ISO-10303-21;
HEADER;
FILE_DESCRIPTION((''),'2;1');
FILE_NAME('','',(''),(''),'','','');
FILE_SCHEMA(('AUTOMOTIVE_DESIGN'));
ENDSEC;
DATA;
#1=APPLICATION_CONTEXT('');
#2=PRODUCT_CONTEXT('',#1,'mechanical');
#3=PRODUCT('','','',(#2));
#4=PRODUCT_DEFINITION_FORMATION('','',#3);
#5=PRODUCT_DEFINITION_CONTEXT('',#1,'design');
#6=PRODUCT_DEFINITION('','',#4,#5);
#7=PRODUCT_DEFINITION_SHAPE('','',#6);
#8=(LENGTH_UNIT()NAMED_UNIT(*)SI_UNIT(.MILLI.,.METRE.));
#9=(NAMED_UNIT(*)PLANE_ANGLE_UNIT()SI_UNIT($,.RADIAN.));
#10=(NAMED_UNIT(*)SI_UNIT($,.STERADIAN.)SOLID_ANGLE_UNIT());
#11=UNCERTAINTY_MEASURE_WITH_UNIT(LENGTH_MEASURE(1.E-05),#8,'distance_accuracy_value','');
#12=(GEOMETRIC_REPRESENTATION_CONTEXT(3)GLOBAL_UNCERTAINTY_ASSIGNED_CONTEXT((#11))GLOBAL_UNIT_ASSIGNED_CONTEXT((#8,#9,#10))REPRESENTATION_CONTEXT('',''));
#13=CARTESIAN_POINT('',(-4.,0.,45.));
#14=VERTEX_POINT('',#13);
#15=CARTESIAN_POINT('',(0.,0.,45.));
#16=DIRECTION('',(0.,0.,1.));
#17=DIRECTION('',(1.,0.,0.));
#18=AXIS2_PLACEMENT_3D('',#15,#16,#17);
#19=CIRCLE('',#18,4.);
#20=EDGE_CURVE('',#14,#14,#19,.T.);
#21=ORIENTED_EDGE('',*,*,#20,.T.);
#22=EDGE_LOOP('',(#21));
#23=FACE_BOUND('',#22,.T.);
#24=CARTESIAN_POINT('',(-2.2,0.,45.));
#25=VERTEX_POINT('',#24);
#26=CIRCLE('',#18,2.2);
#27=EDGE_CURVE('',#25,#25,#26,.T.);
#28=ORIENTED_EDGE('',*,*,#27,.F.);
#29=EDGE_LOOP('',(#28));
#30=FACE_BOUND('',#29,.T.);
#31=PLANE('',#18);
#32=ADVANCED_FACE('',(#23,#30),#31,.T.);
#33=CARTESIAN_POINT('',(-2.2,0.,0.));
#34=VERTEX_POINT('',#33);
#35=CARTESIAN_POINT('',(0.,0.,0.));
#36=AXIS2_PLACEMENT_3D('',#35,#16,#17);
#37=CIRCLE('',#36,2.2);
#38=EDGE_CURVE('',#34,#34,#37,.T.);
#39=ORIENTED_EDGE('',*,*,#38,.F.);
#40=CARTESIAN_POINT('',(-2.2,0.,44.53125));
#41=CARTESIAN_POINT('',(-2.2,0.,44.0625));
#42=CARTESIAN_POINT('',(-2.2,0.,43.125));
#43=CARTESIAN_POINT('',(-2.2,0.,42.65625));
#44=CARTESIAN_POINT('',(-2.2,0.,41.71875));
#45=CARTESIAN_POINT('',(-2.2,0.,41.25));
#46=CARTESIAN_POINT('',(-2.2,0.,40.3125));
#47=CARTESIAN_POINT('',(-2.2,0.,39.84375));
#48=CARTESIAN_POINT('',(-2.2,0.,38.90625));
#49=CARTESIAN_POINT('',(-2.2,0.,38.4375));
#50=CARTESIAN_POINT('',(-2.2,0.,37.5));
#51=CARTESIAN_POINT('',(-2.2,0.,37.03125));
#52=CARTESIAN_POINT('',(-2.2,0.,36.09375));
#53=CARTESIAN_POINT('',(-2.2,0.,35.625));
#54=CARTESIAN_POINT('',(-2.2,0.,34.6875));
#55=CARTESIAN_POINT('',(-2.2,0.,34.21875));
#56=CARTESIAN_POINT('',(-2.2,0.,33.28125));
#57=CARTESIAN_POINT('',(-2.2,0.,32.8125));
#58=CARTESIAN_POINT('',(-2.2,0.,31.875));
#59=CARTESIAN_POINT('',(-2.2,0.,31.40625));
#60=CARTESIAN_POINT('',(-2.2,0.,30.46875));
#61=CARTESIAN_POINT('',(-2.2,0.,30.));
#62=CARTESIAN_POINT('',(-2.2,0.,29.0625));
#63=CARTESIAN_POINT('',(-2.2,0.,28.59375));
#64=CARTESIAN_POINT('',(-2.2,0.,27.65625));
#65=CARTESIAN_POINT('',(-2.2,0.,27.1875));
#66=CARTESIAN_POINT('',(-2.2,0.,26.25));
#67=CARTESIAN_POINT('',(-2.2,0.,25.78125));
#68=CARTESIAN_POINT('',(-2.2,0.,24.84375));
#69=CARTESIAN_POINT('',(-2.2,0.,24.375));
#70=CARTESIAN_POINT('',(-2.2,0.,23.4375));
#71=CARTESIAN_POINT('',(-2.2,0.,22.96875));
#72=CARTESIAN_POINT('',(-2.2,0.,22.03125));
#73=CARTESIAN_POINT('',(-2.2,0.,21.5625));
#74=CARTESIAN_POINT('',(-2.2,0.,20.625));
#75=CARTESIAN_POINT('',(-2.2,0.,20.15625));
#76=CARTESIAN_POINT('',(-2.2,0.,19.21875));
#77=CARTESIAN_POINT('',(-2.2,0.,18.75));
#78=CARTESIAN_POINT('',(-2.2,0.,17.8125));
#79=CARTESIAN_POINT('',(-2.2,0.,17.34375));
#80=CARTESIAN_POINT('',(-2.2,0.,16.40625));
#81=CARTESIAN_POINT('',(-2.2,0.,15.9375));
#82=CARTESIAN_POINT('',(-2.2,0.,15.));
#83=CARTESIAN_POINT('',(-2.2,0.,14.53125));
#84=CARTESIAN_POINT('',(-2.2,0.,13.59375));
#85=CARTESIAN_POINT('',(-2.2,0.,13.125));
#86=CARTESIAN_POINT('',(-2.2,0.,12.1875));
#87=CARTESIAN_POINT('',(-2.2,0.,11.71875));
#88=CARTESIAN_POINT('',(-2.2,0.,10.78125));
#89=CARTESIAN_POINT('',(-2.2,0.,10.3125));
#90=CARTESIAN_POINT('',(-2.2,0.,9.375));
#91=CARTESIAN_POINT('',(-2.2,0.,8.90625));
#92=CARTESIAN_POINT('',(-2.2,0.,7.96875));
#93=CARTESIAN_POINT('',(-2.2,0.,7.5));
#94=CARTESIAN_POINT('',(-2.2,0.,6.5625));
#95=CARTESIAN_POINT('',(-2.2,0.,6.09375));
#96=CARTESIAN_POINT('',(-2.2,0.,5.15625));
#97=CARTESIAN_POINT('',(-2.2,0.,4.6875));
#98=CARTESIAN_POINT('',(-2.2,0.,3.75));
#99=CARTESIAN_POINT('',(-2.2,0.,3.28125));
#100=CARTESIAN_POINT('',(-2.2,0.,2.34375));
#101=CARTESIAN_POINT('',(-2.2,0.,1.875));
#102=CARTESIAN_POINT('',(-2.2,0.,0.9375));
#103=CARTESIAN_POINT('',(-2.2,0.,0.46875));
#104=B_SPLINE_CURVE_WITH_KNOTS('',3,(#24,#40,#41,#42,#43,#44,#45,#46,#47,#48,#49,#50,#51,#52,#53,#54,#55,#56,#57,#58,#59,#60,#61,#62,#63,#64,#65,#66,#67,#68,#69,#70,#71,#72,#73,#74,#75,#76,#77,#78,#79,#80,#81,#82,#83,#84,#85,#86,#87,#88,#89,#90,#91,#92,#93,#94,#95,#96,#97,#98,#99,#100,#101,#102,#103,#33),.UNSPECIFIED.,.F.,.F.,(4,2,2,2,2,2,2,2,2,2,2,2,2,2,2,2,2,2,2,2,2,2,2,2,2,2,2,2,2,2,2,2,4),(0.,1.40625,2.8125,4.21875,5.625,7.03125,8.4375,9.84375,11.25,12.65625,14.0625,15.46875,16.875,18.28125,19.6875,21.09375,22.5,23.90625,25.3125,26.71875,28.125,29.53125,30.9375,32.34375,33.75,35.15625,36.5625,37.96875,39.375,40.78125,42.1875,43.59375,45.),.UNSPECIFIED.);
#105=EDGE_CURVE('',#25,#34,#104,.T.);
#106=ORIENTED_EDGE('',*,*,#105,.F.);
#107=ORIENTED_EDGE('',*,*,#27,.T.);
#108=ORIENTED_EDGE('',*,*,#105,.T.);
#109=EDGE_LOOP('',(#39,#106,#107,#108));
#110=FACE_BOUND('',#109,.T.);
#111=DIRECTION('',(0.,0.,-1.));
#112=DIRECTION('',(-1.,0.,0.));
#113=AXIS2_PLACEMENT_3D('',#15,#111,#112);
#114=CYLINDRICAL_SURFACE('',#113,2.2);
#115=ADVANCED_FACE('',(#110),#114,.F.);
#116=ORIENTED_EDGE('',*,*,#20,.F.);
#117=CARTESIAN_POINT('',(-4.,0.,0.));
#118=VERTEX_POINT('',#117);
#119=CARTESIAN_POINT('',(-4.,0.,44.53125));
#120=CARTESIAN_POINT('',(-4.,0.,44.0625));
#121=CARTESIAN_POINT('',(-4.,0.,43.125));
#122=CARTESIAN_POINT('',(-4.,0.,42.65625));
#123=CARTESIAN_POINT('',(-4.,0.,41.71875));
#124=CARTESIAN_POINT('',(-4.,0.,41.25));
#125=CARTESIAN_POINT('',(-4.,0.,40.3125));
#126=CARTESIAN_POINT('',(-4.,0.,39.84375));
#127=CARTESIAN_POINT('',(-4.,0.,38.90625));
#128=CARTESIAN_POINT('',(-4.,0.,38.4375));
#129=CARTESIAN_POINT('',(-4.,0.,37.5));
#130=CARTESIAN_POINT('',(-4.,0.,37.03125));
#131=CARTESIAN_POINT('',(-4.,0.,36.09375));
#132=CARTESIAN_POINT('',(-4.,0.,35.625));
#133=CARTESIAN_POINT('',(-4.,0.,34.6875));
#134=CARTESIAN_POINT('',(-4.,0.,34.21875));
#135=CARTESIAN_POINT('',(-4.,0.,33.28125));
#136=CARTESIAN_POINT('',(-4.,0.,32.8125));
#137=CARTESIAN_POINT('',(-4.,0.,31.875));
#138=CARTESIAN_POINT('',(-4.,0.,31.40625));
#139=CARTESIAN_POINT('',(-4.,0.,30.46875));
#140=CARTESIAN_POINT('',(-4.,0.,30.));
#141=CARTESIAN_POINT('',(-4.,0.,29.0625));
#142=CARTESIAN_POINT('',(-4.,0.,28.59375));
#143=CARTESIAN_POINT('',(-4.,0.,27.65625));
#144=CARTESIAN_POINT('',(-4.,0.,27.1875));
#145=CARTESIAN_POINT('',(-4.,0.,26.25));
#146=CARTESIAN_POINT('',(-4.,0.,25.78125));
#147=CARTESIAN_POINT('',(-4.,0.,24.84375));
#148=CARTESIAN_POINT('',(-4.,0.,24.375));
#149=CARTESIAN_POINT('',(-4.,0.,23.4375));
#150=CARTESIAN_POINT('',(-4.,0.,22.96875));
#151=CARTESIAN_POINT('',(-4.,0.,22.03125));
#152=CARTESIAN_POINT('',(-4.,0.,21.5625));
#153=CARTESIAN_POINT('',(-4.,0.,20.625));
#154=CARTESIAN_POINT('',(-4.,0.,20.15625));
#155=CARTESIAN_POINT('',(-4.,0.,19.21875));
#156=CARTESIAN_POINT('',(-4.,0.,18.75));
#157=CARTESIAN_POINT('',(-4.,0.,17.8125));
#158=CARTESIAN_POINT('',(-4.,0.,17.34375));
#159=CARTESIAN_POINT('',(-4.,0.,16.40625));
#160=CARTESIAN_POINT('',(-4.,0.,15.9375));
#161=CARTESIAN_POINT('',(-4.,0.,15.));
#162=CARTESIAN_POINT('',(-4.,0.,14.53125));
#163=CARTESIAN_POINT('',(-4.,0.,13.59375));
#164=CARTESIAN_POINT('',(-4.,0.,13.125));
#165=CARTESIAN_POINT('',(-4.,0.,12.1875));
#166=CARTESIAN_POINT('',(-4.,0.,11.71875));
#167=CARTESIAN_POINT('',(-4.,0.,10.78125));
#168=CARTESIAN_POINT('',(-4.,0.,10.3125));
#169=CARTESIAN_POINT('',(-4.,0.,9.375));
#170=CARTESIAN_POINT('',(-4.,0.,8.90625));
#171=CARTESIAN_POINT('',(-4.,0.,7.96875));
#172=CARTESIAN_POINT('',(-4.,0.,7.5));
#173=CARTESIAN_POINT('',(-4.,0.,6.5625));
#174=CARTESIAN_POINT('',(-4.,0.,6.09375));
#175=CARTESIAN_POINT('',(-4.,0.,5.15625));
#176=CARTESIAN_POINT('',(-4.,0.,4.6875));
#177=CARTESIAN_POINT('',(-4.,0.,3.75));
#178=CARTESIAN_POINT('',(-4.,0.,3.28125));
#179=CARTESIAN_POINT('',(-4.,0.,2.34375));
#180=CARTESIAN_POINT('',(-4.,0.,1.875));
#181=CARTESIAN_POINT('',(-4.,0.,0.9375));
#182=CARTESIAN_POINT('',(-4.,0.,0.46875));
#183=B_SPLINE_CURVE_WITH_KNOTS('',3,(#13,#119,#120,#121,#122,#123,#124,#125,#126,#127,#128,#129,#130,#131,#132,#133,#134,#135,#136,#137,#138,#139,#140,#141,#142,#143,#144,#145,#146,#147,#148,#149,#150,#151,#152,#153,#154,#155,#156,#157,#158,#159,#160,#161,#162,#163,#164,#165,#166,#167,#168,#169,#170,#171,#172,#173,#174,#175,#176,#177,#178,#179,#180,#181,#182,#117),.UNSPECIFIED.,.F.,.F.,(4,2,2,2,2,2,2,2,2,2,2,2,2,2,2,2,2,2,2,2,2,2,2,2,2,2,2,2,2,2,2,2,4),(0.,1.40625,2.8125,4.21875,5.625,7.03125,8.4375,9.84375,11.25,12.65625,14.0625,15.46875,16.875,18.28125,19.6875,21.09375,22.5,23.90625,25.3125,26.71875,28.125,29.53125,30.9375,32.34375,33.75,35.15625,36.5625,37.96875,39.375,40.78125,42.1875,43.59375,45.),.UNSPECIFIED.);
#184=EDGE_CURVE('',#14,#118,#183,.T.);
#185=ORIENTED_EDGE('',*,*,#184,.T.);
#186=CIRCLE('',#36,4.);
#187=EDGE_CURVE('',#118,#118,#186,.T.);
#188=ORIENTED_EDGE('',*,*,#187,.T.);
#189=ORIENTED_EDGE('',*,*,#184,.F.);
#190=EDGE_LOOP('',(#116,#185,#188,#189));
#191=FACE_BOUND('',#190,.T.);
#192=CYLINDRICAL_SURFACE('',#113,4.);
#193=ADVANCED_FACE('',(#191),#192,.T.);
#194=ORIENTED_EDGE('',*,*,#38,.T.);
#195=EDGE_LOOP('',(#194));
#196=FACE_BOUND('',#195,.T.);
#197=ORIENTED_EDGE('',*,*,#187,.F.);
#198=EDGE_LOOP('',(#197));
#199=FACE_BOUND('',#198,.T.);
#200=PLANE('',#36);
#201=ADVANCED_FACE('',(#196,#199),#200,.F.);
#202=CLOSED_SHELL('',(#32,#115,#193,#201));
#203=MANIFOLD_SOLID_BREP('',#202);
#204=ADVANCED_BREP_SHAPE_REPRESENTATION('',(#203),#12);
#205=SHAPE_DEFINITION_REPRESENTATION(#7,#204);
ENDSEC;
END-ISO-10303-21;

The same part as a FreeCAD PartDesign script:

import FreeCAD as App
import Part
import Sketcher
Q = App.Units.Quantity

doc = App.newDocument("Part")
params = doc.addObject("Spreadsheet::Sheet", "Params")
for row, (alias, value) in enumerate([
    ("sketch1_diameter", "8 mm"),
    ("sketch1_diameter2", "4.4 mm"),
    ("pad1_length", "45 mm"),
], start=1):
    params.set(f"A{row}", alias)
    params.set(f"B{row}", "=" + value)
    params.setAlias(f"B{row}", alias)

body = doc.addObject("PartDesign::Body", "Body")

# Sketch on XY plane
sketch1 = body.newObject("Sketcher::SketchObject", "Sketch")
sketch1.AttachmentSupport = (doc.getObject("XY_Plane"), [""])
sketch1.MapMode = "FlatFace"
sketch1.addGeometry([
    Part.Circle(App.Vector(0, 0, 0), App.Vector(0, 0, 1), 4),
    Part.Circle(App.Vector(0, 0, 0), App.Vector(0, 0, 1), 2.2),
], False)
sketch1.addConstraint([
    Sketcher.Constraint("Coincident", 0, 3, -1, 1),
    Sketcher.Constraint("Coincident", 1, 3, -1, 1),
    Sketcher.Constraint("Diameter", 0, Q("8 mm")),
    Sketcher.Constraint("Diameter", 1, Q("4.4 mm")),
])
sketch1.setExpression("Constraints[2]", "Params.sketch1_diameter")
sketch1.setExpression("Constraints[3]", "Params.sketch1_diameter2")
pad1 = body.newObject("PartDesign::Pad", "Pad")
pad1.Profile = sketch1
pad1.setExpression("Length", "Params.pad1_length")

doc.recompute()
